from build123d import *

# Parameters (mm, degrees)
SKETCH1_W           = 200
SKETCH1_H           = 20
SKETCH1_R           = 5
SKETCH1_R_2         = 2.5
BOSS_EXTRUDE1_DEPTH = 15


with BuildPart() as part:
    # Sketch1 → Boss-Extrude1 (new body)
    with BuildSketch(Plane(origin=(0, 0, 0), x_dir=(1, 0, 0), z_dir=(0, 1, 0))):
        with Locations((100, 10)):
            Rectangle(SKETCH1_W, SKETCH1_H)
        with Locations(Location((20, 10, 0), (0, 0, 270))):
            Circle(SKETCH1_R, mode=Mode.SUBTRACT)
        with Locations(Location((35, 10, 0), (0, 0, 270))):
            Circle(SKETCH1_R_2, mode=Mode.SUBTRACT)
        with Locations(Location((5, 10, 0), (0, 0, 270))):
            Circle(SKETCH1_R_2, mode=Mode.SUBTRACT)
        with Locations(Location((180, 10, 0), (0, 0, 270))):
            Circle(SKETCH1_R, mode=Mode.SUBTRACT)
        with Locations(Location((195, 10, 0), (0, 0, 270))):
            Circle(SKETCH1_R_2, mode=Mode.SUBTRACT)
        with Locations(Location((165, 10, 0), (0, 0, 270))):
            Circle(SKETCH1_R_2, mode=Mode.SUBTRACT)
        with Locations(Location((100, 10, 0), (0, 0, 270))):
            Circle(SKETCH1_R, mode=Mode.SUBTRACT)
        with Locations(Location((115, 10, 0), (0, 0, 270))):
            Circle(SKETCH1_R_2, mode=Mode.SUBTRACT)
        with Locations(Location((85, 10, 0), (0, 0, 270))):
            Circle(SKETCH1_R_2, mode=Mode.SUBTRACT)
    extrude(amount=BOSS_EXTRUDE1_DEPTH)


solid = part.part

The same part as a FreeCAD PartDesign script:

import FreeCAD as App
import Part
import Sketcher
from FreeCAD import Vector

doc = App.newDocument("Part")
body = doc.addObject("PartDesign::Body", "Body")

sketch1 = body.newObject("Sketcher::SketchObject", "Sketch")
sketch1.AttachmentSupport = (doc.getObject("XZ_Plane"), [""])
sketch1.MapMode = "FlatFace"
sketch1.addGeometry([
    Part.LineSegment(Vector(0, -20, 0), Vector(0, 0, 0)),
    Part.LineSegment(Vector(0, 0, 0), Vector(200, 0, 0)),
    Part.LineSegment(Vector(200, 0, 0), Vector(200, -20, 0)),
    Part.LineSegment(Vector(200, -20, 0), Vector(0, -20, 0)),
    Part.Circle(Vector(5, -10, 0), Vector(0, 0, 1), 2.5),
    Part.Circle(Vector(20, -10, 0), Vector(0, 0, 1), 5),
    Part.Circle(Vector(35, -10, 0), Vector(0, 0, 1), 2.5),
    Part.Circle(Vector(85, -10, 0), Vector(0, 0, 1), 2.5),
    Part.Circle(Vector(100, -10, 0), Vector(0, 0, 1), 5),
    Part.Circle(Vector(115, -10, 0), Vector(0, 0, 1), 2.5),
    Part.Circle(Vector(165, -10, 0), Vector(0, 0, 1), 2.5),
    Part.Circle(Vector(180, -10, 0), Vector(0, 0, 1), 5),
    Part.Circle(Vector(195, -10, 0), Vector(0, 0, 1), 2.5),
], False)
sketch1.addConstraint([
    Sketcher.Constraint("Coincident", 0, 2, 1, 1),
    Sketcher.Constraint("Coincident", 1, 2, 2, 1),
    Sketcher.Constraint("Coincident", 2, 2, 3, 1),
    Sketcher.Constraint("Coincident", 3, 2, 0, 1),
    Sketcher.Constraint("Vertical", 0),
    Sketcher.Constraint("Horizontal", 1),
    Sketcher.Constraint("Vertical", 2),
    Sketcher.Constraint("Horizontal", 3),
    Sketcher.Constraint("Coincident", 0, 2, -1, 1),
    Sketcher.Constraint("Equal", 4, 6),
    Sketcher.Constraint("Equal", 6, 7),
    Sketcher.Constraint("Equal", 5, 8),
    Sketcher.Constraint("Equal", 7, 9),
    Sketcher.Constraint("Equal", 9, 10),
    Sketcher.Constraint("Equal", 8, 11),
    Sketcher.Constraint("Equal", 10, 12),
    Sketcher.Constraint("Horizontal", 4, 3, 5, 3),
    Sketcher.Constraint("Horizontal", 5, 3, 6, 3),
    Sketcher.Constraint("Horizontal", 6, 3, 7, 3),
    Sketcher.Constraint("Horizontal", 7, 3, 8, 3),
    Sketcher.Constraint("Horizontal", 8, 3, 9, 3),
    Sketcher.Constraint("Horizontal", 9, 3, 10, 3),
    Sketcher.Constraint("Horizontal", 10, 3, 11, 3),
    Sketcher.Constraint("Horizontal", 11, 3, 12, 3),
    Sketcher.Constraint("Diameter", 4, 5.0),
    Sketcher.Constraint("Diameter", 5, 10.0),
    Sketcher.Constraint("DistanceX", 1, 1, 1, 2, 200.0),
    Sketcher.Constraint("DistanceY", 0, 1, 0, 2, 20.0),
    Sketcher.Constraint("DistanceX", -1, 1, 4, 3, 5.0),
    Sketcher.Constraint("DistanceY", 4, 3, -1, 1, 10.0),
    Sketcher.Constraint("DistanceX", -1, 1, 5, 3, 20.0),
    Sketcher.Constraint("DistanceX", -1, 1, 6, 3, 35.0),
    Sketcher.Constraint("DistanceX", -1, 1, 7, 3, 85.0),
    Sketcher.Constraint("DistanceX", -1, 1, 8, 3, 100.0),
    Sketcher.Constraint("DistanceX", -1, 1, 9, 3, 115.0),
    Sketcher.Constraint("DistanceX", -1, 1, 10, 3, 165.0),
    Sketcher.Constraint("DistanceX", -1, 1, 11, 3, 180.0),
    Sketcher.Constraint("DistanceX", -1, 1, 12, 3, 195.0),
])
pad1 = body.newObject("PartDesign::Pad", "Pad")
pad1.Profile = sketch1
pad1.Length = 15
pad1.Reversed = True

doc.recompute()
